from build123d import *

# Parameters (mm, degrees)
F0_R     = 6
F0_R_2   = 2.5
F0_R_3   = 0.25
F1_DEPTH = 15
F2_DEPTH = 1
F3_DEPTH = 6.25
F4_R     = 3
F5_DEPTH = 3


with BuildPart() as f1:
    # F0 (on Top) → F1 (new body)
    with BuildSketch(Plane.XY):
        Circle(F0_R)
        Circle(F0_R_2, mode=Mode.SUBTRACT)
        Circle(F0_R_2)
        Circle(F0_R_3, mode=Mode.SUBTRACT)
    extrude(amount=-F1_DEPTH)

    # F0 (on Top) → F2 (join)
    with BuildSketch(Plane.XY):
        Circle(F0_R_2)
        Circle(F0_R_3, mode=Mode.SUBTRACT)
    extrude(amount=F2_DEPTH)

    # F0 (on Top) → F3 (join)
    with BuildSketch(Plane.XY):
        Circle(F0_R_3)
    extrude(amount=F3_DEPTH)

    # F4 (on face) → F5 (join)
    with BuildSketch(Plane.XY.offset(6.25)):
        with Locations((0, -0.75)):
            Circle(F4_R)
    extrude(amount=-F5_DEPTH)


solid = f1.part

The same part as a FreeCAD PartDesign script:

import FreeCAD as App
import Part
import Sketcher

V = App.Vector

doc = App.newDocument("Part")
body = doc.addObject("PartDesign::Body", "Body")

# Sketch on XY plane
sketch1 = body.newObject("Sketcher::SketchObject", "Sketch")
sketch1.AttachmentSupport = (doc.getObject("XY_Plane"), [""])
sketch1.MapMode = "FlatFace"
sketch1.addGeometry([
    Part.Circle(V(0, 0, 0), V(0, 0, 1), 6),
    Part.Circle(V(0, 0, 0), V(0, 0, 1), 0.25),
], False)
sketch1.addConstraint([
    Sketcher.Constraint("Coincident", 0, 3, -1, 1),
    Sketcher.Constraint("Coincident", 1, 3, -1, 1),
    Sketcher.Constraint("Diameter", 0, 12.0),
    Sketcher.Constraint("Diameter", 1, 0.5),
])
pad1 = body.newObject("PartDesign::Pad", "Pad")
pad1.Profile = sketch1
pad1.Length = 15
pad1.Reversed = True

# Sketch on XY plane
sketch2 = body.newObject("Sketcher::SketchObject", "Sketch001")
sketch2.AttachmentSupport = (doc.getObject("XY_Plane"), [""])
sketch2.MapMode = "FlatFace"
sketch2.addGeometry([
    Part.Circle(V(0, 0, 0), V(0, 0, 1), 2.5),
    Part.Circle(V(0, 0, 0), V(0, 0, 1), 0.25),
], False)
sketch2.addConstraint([
    Sketcher.Constraint("Coincident", 0, 3, -1, 1),
    Sketcher.Constraint("Coincident", 1, 3, -1, 1),
    Sketcher.Constraint("Diameter", 0, 5.0),
    Sketcher.Constraint("Diameter", 1, 0.5),
])
pad2 = body.newObject("PartDesign::Pad", "Pad001")
pad2.Profile = sketch2
pad2.Length = 1

# Sketch on XY plane
sketch3 = body.newObject("Sketcher::SketchObject", "Sketch002")
sketch3.AttachmentSupport = (doc.getObject("XY_Plane"), [""])
sketch3.MapMode = "FlatFace"
sketch3.addGeometry(Part.Circle(V(0, 0, 0), V(0, 0, 1), 0.25), False)
sketch3.addConstraint([
    Sketcher.Constraint("Coincident", 0, 3, -1, 1),
    Sketcher.Constraint("Diameter", 0, 0.5),
])
pad3 = body.newObject("PartDesign::Pad", "Pad002")
pad3.Profile = sketch3
pad3.Length = 6.25

# Sketch on XY plane
sketch4 = body.newObject("Sketcher::SketchObject", "Sketch003")
sketch4.AttachmentSupport = (doc.getObject("XY_Plane"), [""])
sketch4.MapMode = "FlatFace"
sketch4.AttachmentOffset = App.Placement(V(0, 0, 6.25), App.Rotation())
sketch4.addGeometry(Part.Circle(V(0, -0.8, 0), V(0, 0, 1), 3), False)
sketch4.addConstraint([
    Sketcher.Constraint("PointOnObject", 0, 3, -2),
    Sketcher.Constraint("Diameter", 0, 6.0),
    Sketcher.Constraint("DistanceY", 0, 3, -1, 1, 0.75),
])
pad4 = body.newObject("PartDesign::Pad", "Pad003")
pad4.Profile = sketch4
pad4.Length = 3
pad4.Reversed = True

doc.recompute()
